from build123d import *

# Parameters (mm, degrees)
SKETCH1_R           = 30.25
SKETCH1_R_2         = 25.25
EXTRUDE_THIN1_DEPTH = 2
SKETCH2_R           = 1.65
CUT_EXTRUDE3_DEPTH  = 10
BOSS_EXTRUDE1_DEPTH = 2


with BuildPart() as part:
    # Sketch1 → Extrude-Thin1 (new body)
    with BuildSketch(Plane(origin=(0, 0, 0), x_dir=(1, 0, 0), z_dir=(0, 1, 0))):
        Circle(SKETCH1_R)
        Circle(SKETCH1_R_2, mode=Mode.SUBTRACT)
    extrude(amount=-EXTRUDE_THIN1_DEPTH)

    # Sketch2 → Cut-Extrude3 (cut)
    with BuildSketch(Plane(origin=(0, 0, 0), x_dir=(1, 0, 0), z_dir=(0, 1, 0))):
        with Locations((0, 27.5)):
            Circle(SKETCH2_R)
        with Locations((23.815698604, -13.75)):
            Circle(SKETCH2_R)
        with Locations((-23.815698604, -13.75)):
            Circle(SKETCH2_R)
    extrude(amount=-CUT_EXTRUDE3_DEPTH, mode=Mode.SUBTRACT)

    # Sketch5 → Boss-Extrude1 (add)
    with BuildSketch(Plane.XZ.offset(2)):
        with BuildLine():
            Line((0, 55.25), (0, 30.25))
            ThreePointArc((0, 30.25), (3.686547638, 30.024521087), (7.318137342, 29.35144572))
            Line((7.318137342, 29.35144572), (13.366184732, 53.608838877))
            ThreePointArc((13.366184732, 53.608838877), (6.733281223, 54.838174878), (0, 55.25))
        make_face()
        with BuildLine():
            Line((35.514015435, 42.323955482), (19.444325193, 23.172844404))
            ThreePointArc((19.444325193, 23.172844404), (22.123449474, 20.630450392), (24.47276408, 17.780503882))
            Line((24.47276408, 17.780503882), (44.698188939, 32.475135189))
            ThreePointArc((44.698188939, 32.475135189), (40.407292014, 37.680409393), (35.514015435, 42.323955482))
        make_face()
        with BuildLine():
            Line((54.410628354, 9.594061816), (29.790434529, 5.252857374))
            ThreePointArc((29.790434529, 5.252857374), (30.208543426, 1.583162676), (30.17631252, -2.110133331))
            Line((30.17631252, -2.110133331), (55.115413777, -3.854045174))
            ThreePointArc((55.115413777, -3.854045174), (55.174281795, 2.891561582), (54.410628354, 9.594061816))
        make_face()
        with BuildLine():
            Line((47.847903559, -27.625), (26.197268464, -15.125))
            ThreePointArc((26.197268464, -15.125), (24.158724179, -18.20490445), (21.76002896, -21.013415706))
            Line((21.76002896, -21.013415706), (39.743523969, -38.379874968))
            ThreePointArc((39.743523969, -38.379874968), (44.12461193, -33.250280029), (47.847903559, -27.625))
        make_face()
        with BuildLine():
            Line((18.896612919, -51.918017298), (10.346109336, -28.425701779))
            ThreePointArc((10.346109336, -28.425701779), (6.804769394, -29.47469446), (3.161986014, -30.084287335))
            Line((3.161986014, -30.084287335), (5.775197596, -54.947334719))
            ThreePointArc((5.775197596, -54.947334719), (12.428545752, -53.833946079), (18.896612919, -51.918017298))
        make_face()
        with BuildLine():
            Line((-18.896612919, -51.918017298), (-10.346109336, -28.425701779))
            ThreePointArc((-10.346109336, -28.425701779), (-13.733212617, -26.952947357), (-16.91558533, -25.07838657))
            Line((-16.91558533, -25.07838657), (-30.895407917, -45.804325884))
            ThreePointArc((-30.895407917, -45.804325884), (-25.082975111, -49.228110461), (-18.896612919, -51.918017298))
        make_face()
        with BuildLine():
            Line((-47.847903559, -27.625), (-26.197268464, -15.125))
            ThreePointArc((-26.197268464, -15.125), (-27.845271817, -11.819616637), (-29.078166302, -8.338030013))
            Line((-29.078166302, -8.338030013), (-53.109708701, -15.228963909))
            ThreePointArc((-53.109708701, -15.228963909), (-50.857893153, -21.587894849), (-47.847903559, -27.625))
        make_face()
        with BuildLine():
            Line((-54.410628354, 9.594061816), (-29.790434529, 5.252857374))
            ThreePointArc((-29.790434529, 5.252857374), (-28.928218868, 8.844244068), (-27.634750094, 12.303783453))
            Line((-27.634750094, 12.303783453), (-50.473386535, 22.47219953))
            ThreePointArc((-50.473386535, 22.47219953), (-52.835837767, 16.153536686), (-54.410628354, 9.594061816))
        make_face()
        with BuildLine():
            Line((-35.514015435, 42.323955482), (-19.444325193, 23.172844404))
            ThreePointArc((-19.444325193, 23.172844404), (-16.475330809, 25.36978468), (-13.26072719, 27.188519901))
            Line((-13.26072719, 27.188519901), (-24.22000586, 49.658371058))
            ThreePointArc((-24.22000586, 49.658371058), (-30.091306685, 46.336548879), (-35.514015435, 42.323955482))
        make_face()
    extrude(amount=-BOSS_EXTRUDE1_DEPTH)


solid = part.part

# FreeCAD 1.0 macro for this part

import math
import FreeCAD as App
import Part
import Sketcher
Q = App.Units.Quantity

doc = App.newDocument("Part")
params = doc.addObject("Spreadsheet::Sheet", "Params")
for row, (alias, value) in enumerate([
    ("sketch1_diameter", "60.5 mm"),
    ("sketch1_diameter2", "50.5 mm"),
    ("pad1_length", "2 mm"),
    ("sketch2_diameter", "3.3 mm"),
    ("pocket1_length", "10 mm"),
    ("sketch3_height", "25 mm"),
    ("sketch3_radius", "30.25 mm"),
    ("pad2_length", "2 mm"),
], start=1):
    params.set(f"A{row}", alias)
    params.set(f"B{row}", "=" + value)
    params.setAlias(f"B{row}", alias)

body = doc.addObject("PartDesign::Body", "Body")

# Sketch on XZ plane
sketch1 = body.newObject("Sketcher::SketchObject", "Sketch")
sketch1.AttachmentSupport = (doc.getObject("XZ_Plane"), [""])
sketch1.MapMode = "FlatFace"
sketch1.addGeometry([
    Part.Circle(App.Vector(0, 0, 0), App.Vector(0, 0, 1), 30),
    Part.Circle(App.Vector(0, 0, 0), App.Vector(0, 0, 1), 25),
], False)
sketch1.addConstraint([
    Sketcher.Constraint("Coincident", 0, 3, -1, 1),
    Sketcher.Constraint("Coincident", 1, 3, -1, 1),
    Sketcher.Constraint("Diameter", 0, 60.5),
    Sketcher.Constraint("Diameter", 1, 50.5),
])
sketch1.setExpression("Constraints[2]", "Params.sketch1_diameter")
sketch1.setExpression("Constraints[3]", "Params.sketch1_diameter2")
pad1 = body.newObject("PartDesign::Pad", "Pad")
pad1.Profile = sketch1
pad1.setExpression("Length", "Params.pad1_length")

# Sketch on XZ plane
sketch2 = body.newObject("Sketcher::SketchObject", "Sketch001")
sketch2.AttachmentSupport = (doc.getObject("XZ_Plane"), [""])
sketch2.MapMode = "FlatFace"
sketch2.addGeometry([
    Part.Circle(App.Vector(0, -27.5, 0), App.Vector(0, 0, 1), 1.6),
    Part.Circle(App.Vector(23.8, 13.8, 0), App.Vector(0, 0, 1), 1.6),
    Part.Circle(App.Vector(-23.8, 13.8, 0), App.Vector(0, 0, 1), 1.6),
], False)
sketch2.addConstraint([
    Sketcher.Constraint("Equal", 0, 1),
    Sketcher.Constraint("Equal", 1, 2),
    Sketcher.Constraint("Symmetric", 1, 3, 2, 3, -2),
    Sketcher.Constraint("PointOnObject", 0, 3, -2),
    Sketcher.Constraint("Diameter", 0, 3.3),
    Sketcher.Constraint("DistanceY", 0, 3, -1, 1, 27.5),
    Sketcher.Constraint("DistanceY", -1, 1, 1, 3, 13.75),
    Sketcher.Constraint("DistanceX", -1, 1, 1, 3, 23.815699),
])
sketch2.setExpression("Constraints[4]", "Params.sketch2_diameter")
pocket1 = body.newObject("PartDesign::Pocket", "Pocket")
pocket1.Profile = sketch2
pocket1.setExpression("Length", "Params.pocket1_length")
pocket1.Reversed = True

# Sketch on XZ plane
sketch3 = body.newObject("Sketcher::SketchObject", "Sketch002")
sketch3.AttachmentSupport = (doc.getObject("XZ_Plane"), [""])
sketch3.MapMode = "FlatFace"
sketch3.AttachmentOffset = App.Placement(App.Vector(0, 0, 2), App.Rotation())
sketch3.addGeometry([
    Part.LineSegment(App.Vector(0, 55, 0), App.Vector(0, 30, 0)),  # 0
    Part.ArcOfCircle(Part.Circle(App.Vector(0, 0, 0), App.Vector(0, 0, 1), 30), math.radians(76), math.radians(90)),  # 1
    Part.LineSegment(App.Vector(7, 29, 0), App.Vector(13, 54, 0)),  # 2
    Part.ArcOfCircle(Part.Circle(App.Vector(0, 0, 0), App.Vector(0, 0, 1), 55), math.radians(76), math.radians(90)),  # 3
    Part.LineSegment(App.Vector(36, 42, 0), App.Vector(19, 23, 0)),  # 4
    Part.ArcOfCircle(Part.Circle(App.Vector(0, 0, 0), App.Vector(0, 0, 1), 30), math.radians(36), math.radians(50)),  # 5
    Part.LineSegment(App.Vector(24, 18, 0), App.Vector(45, 32, 0)),  # 6
    Part.ArcOfCircle(Part.Circle(App.Vector(0, 0, 0), App.Vector(0, 0, 1), 55), math.radians(36), math.radians(50)),  # 7
    Part.LineSegment(App.Vector(54, 10, 0), App.Vector(30, 5, 0)),  # 8
    Part.ArcOfCircle(Part.Circle(App.Vector(0, 0, 0), App.Vector(0, 0, 1), 30), math.radians(-4), math.radians(10)),  # 9
    Part.LineSegment(App.Vector(30, -2, 0), App.Vector(55, -4, 0)),  # 10
    Part.ArcOfCircle(Part.Circle(App.Vector(0, 0, 0), App.Vector(0, 0, 1), 55), math.radians(-4), math.radians(10)),  # 11
    Part.LineSegment(App.Vector(48, -28, 0), App.Vector(26, -15, 0)),  # 12
    Part.ArcOfCircle(Part.Circle(App.Vector(0, 0, 0), App.Vector(0, 0, 1), 30), math.radians(-44), math.radians(-30)),  # 13
    Part.LineSegment(App.Vector(22, -21, 0), App.Vector(40, -38, 0)),  # 14
    Part.ArcOfCircle(Part.Circle(App.Vector(0, 0, 0), App.Vector(0, 0, 1), 55), math.radians(-44), math.radians(-30)),  # 15
    Part.LineSegment(App.Vector(19, -52, 0), App.Vector(10, -28, 0)),  # 16
    Part.ArcOfCircle(Part.Circle(App.Vector(0, 0, 0), App.Vector(0, 0, 1), 30), math.radians(-84), math.radians(-70)),  # 17
    Part.LineSegment(App.Vector(3, -30, 0), App.Vector(6, -55, 0)),  # 18
    Part.ArcOfCircle(Part.Circle(App.Vector(0, 0, 0), App.Vector(0, 0, 1), 55), math.radians(-84), math.radians(-70)),  # 19
    Part.LineSegment(App.Vector(-19, -52, 0), App.Vector(-10, -28, 0)),  # 20
    Part.ArcOfCircle(Part.Circle(App.Vector(0, 0, 0), App.Vector(0, 0, 1), 30), math.radians(-124), math.radians(-110)),  # 21
    Part.LineSegment(App.Vector(-17, -25, 0), App.Vector(-31, -46, 0)),  # 22
    Part.ArcOfCircle(Part.Circle(App.Vector(0, 0, 0), App.Vector(0, 0, 1), 55), math.radians(-124), math.radians(-110)),  # 23
    Part.LineSegment(App.Vector(-48, -28, 0), App.Vector(-26, -15, 0)),  # 24
    Part.ArcOfCircle(Part.Circle(App.Vector(0, 0, 0), App.Vector(0, 0, 1), 30), math.radians(-164), math.radians(-150)),  # 25
    Part.LineSegment(App.Vector(-29, -8, 0), App.Vector(-53, -15, 0)),  # 26
    Part.ArcOfCircle(Part.Circle(App.Vector(0, 0, 0), App.Vector(0, 0, 1), 55), math.radians(-164), math.radians(-150)),  # 27
    Part.LineSegment(App.Vector(-54, 10, 0), App.Vector(-30, 5, 0)),  # 28
    Part.ArcOfCircle(Part.Circle(App.Vector(0, 0, 0), App.Vector(0, 0, 1), 30), math.radians(156), math.radians(170)),  # 29
    Part.LineSegment(App.Vector(-28, 12, 0), App.Vector(-50, 22, 0)),  # 30
    Part.ArcOfCircle(Part.Circle(App.Vector(0, 0, 0), App.Vector(0, 0, 1), 55), math.radians(156), math.radians(170)),  # 31
    Part.LineSegment(App.Vector(-36, 42, 0), App.Vector(-19, 23, 0)),  # 32
    Part.ArcOfCircle(Part.Circle(App.Vector(0, 0, 0), App.Vector(0, 0, 1), 30), math.radians(116), math.radians(130)),  # 33
    Part.LineSegment(App.Vector(-13, 27, 0), App.Vector(-24, 50, 0)),  # 34
    Part.ArcOfCircle(Part.Circle(App.Vector(0, 0, 0), App.Vector(0, 0, 1), 55), math.radians(116), math.radians(130)),  # 35
], False)
sketch3.addConstraint([
    Sketcher.Constraint("Coincident", 0, 2, 1, 2),
    Sketcher.Constraint("Coincident", 1, 1, 2, 1),
    Sketcher.Constraint("Coincident", 2, 2, 3, 1),
    Sketcher.Constraint("Coincident", 3, 2, 0, 1),
    Sketcher.Constraint("Coincident", 4, 2, 5, 2),
    Sketcher.Constraint("Coincident", 5, 1, 6, 1),
    Sketcher.Constraint("Coincident", 6, 2, 7, 1),
    Sketcher.Constraint("Coincident", 7, 2, 4, 1),
    Sketcher.Constraint("Coincident", 8, 2, 9, 2),
    Sketcher.Constraint("Coincident", 9, 1, 10, 1),
    Sketcher.Constraint("Coincident", 10, 2, 11, 1),
    Sketcher.Constraint("Coincident", 11, 2, 8, 1),
    Sketcher.Constraint("Coincident", 12, 2, 13, 2),
    Sketcher.Constraint("Coincident", 13, 1, 14, 1),
    Sketcher.Constraint("Coincident", 14, 2, 15, 1),
    Sketcher.Constraint("Coincident", 15, 2, 12, 1),
    Sketcher.Constraint("Coincident", 16, 2, 17, 2),
    Sketcher.Constraint("Coincident", 17, 1, 18, 1),
    Sketcher.Constraint("Coincident", 18, 2, 19, 1),
    Sketcher.Constraint("Coincident", 19, 2, 16, 1),
    Sketcher.Constraint("Coincident", 20, 2, 21, 2),
    Sketcher.Constraint("Coincident", 21, 1, 22, 1),
    Sketcher.Constraint("Coincident", 22, 2, 23, 1),
    Sketcher.Constraint("Coincident", 23, 2, 20, 1),
    Sketcher.Constraint("Coincident", 24, 2, 25, 2),
    Sketcher.Constraint("Coincident", 25, 1, 26, 1),
    Sketcher.Constraint("Coincident", 26, 2, 27, 1),
    Sketcher.Constraint("Coincident", 27, 2, 24, 1),
    Sketcher.Constraint("Coincident", 28, 2, 29, 2),
    Sketcher.Constraint("Coincident", 29, 1, 30, 1),
    Sketcher.Constraint("Coincident", 30, 2, 31, 1),
    Sketcher.Constraint("Coincident", 31, 2, 28, 1),
    Sketcher.Constraint("Coincident", 32, 2, 33, 2),
    Sketcher.Constraint("Coincident", 33, 1, 34, 1),
    Sketcher.Constraint("Coincident", 34, 2, 35, 1),
    Sketcher.Constraint("Coincident", 35, 2, 32, 1),
    Sketcher.Constraint("Vertical", 0),
    Sketcher.Constraint("Coincident", 1, 3, -1, 1),
    Sketcher.Constraint("Coincident", 3, 3, -1, 1),
    Sketcher.Constraint("Coincident", 5, 3, -1, 1),
    Sketcher.Constraint("Coincident", 7, 3, -1, 1),
    Sketcher.Constraint("Coincident", 9, 3, -1, 1),
    Sketcher.Constraint("Coincident", 11, 3, -1, 1),
    Sketcher.Constraint("Coincident", 13, 3, -1, 1),
    Sketcher.Constraint("Coincident", 15, 3, -1, 1),
    Sketcher.Constraint("Coincident", 17, 3, -1, 1),
    Sketcher.Constraint("Coincident", 19, 3, -1, 1),
    Sketcher.Constraint("Coincident", 21, 3, -1, 1),
    Sketcher.Constraint("Coincident", 23, 3, -1, 1),
    Sketcher.Constraint("Coincident", 25, 3, -1, 1),
    Sketcher.Constraint("Coincident", 27, 3, -1, 1),
    Sketcher.Constraint("Coincident", 29, 3, -1, 1),
    Sketcher.Constraint("Coincident", 31, 3, -1, 1),
    Sketcher.Constraint("Coincident", 33, 3, -1, 1),
    Sketcher.Constraint("Coincident", 35, 3, -1, 1),
    Sketcher.Constraint("Equal", 1, 5),
    Sketcher.Constraint("Equal", 3, 7),
    Sketcher.Constraint("Equal", 5, 9),
    Sketcher.Constraint("Equal", 7, 11),
    Sketcher.Constraint("Equal", 9, 13),
    Sketcher.Constraint("Equal", 11, 15),
    Sketcher.Constraint("Equal", 13, 17),
    Sketcher.Constraint("Equal", 15, 19),
    Sketcher.Constraint("Equal", 17, 21),
    Sketcher.Constraint("Equal", 19, 23),
    Sketcher.Constraint("Equal", 21, 25),
    Sketcher.Constraint("Equal", 23, 27),
    Sketcher.Constraint("Equal", 25, 29),
    Sketcher.Constraint("Equal", 27, 31),
    Sketcher.Constraint("Equal", 29, 33),
    Sketcher.Constraint("Equal", 31, 35),
    Sketcher.Constraint("PointOnObject", 0, 2, -2),
    Sketcher.Constraint("Horizontal", 16, 2, 20, 2),
    Sketcher.Constraint("Horizontal", 19, 2, 23, 2),
    Sketcher.Constraint("Horizontal", 12, 2, 24, 2),
    Sketcher.Constraint("Horizontal", 15, 2, 27, 2),
    Sketcher.Constraint("Horizontal", 8, 2, 28, 2),
    Sketcher.Constraint("Horizontal", 11, 2, 31, 2),
    Sketcher.Constraint("Horizontal", 4, 2, 32, 2),
    Sketcher.Constraint("Horizontal", 7, 2, 35, 2),
    Sketcher.Constraint("DistanceY", 0, 2, 0, 1, 25.0),
    Sketcher.Constraint("Angle", 2, Q("76 deg")),
    Sketcher.Constraint("Angle", 4, Q("-130 deg")),
    Sketcher.Constraint("Angle", 6, Q("36 deg")),
    Sketcher.Constraint("Angle", 8, Q("-170 deg")),
    Sketcher.Constraint("Angle", 10, Q("-4 deg")),
    Sketcher.Constraint("Angle", 12, Q("150 deg")),
    Sketcher.Constraint("Angle", 14, Q("-44 deg")),
    Sketcher.Constraint("Angle", 16, Q("110 deg")),
    Sketcher.Constraint("Angle", 18, Q("-84 deg")),
    Sketcher.Constraint("Angle", 22, Q("-124 deg")),
    Sketcher.Constraint("Angle", 26, Q("-164 deg")),
    Sketcher.Constraint("Angle", 30, Q("156 deg")),
    Sketcher.Constraint("Angle", 34, Q("116 deg")),
    Sketcher.Constraint("Radius", 1, 30.25),
    Sketcher.Constraint("DistanceY", 12, 2, -1, 1, 15.125),
    Sketcher.Constraint("DistanceY", 16, 2, -1, 1, 28.425702),
    Sketcher.Constraint("DistanceY", -1, 1, 30, 2, 22.4722),
    Sketcher.Constraint("DistanceY", 4, 2, 1, 1, 6.178601),
    Sketcher.Constraint("DistanceY", 19, 2, 13, 1, 30.904602),
    Sketcher.Constraint("DistanceY", 17, 1, 21, 1, 5.005901),
    Sketcher.Constraint("DistanceX", 22, 2, 20, 2, 20.549299),
    Sketcher.Constraint("DistanceX", 26, 2, 22, 2, 22.214301),
    Sketcher.Constraint("DistanceX", 32, 2, 33, 1, 6.183598),
    Sketcher.Constraint("DistanceY", -1, 1, 2, 2, 53.608839),
    Sketcher.Constraint("DistanceX", -1, 1, 6, 2, 44.698189),
    Sketcher.Constraint("DistanceX", -1, 1, 11, 2, 54.410628),
    Sketcher.Constraint("DistanceY", 9, 1, 8, 2, 7.362991),
])
sketch3.setExpression("Constraints[80]", "Params.sketch3_height")
sketch3.setExpression("Constraints[94]", "Params.sketch3_radius")
pad2 = body.newObject("PartDesign::Pad", "Pad001")
pad2.Profile = sketch3
pad2.setExpression("Length", "Params.pad2_length")
pad2.Reversed = True

doc.recompute()
